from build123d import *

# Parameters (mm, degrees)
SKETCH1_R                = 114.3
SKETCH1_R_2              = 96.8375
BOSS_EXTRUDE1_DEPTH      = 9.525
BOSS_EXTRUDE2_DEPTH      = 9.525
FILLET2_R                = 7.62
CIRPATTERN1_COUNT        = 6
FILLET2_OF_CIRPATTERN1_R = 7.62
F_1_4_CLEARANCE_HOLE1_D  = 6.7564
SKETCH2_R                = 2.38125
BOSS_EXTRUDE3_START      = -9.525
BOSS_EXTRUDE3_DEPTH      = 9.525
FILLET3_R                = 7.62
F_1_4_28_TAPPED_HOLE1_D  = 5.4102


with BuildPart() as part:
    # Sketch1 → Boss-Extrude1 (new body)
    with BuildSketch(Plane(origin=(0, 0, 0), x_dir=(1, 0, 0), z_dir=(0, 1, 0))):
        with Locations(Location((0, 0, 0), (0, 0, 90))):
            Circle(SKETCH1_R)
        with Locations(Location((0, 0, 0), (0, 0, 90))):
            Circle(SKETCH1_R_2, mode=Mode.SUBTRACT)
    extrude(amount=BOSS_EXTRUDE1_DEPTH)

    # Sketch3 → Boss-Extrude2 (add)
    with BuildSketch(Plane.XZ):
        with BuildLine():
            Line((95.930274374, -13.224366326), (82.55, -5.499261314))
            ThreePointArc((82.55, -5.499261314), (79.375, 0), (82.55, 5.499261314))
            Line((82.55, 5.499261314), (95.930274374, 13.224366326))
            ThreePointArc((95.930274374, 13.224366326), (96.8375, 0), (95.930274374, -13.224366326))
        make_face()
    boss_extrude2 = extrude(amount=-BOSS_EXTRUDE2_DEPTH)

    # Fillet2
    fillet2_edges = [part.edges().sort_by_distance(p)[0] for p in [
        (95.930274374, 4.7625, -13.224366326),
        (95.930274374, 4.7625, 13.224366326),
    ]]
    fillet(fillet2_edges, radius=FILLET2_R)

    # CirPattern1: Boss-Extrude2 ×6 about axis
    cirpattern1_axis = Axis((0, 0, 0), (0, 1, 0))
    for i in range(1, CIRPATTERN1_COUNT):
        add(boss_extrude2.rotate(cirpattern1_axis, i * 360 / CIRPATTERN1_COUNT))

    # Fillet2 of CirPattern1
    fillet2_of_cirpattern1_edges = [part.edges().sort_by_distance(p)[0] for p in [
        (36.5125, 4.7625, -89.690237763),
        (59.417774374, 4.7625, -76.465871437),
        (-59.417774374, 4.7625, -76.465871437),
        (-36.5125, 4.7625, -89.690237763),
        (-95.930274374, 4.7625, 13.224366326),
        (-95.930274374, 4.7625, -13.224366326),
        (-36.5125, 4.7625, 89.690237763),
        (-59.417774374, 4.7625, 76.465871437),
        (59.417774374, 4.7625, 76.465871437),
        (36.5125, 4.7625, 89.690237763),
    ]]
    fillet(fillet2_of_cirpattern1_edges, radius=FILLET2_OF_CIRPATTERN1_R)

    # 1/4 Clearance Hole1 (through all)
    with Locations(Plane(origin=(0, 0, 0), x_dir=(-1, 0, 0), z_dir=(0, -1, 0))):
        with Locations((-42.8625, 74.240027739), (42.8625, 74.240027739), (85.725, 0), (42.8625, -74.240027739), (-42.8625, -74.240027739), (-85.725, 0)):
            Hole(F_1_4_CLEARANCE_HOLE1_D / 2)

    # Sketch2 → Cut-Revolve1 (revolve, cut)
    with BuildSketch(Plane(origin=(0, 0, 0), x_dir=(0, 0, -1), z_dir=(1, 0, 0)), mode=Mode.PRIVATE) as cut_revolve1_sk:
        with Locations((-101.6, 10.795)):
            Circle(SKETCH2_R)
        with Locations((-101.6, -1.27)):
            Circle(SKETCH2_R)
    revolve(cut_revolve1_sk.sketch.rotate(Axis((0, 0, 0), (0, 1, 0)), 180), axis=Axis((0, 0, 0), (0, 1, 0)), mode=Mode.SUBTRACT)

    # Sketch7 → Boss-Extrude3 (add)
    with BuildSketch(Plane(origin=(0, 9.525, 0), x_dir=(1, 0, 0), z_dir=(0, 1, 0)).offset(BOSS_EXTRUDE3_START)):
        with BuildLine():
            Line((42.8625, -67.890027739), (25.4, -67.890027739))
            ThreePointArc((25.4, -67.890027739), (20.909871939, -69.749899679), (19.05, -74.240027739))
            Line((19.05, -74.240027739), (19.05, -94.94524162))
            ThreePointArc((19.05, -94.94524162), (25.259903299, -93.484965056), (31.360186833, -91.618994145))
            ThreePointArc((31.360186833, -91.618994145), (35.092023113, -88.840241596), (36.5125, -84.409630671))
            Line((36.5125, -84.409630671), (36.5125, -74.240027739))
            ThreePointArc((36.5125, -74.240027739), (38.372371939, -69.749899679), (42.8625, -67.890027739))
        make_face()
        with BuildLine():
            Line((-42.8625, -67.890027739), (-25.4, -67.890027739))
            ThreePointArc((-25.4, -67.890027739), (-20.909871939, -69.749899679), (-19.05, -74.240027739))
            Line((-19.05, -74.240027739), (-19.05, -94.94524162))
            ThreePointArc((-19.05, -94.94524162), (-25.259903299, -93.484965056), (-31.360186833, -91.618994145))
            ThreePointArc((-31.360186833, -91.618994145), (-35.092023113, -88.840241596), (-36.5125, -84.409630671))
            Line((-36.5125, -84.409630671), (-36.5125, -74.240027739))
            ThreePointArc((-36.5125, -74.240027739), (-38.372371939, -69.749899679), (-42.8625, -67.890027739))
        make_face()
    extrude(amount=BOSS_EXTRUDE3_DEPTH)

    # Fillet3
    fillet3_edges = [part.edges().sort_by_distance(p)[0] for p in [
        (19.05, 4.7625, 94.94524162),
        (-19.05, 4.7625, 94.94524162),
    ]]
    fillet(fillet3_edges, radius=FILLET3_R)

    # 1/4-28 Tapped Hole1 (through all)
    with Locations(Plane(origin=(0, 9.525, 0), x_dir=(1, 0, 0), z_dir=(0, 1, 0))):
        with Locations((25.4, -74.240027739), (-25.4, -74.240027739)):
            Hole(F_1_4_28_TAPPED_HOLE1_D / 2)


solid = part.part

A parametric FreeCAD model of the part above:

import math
import FreeCAD as App
import Part
import Sketcher
from FreeCAD import Vector
Q = App.Units.Quantity


def edges_at(feature, points):
    """Names of the edges that pass closest to the given points."""
    edges = feature.Shape.Edges
    near = lambda p: min(range(len(edges)), key=lambda i: edges[i].distToShape(Part.Vertex(*p))[0])
    return sorted({f"Edge{near(p) + 1}" for p in points})

doc = App.newDocument("Part")
body = doc.addObject("PartDesign::Body", "Body")

# Sketch on XZ plane
sketch1 = body.newObject("Sketcher::SketchObject", "Sketch")
sketch1.AttachmentSupport = (doc.getObject("XZ_Plane"), [""])
sketch1.MapMode = "FlatFace"
sketch1.addGeometry(Part.Circle(Vector(0, 0, 0), Vector(0, 0, 1), 114), False)
sketch1.addGeometry(Part.Circle(Vector(0, 0, 0), Vector(0, 0, 1), 97), False)
sketch1.addConstraint(Sketcher.Constraint("Coincident", 0, 3, -1, 1))
sketch1.addConstraint(Sketcher.Constraint("Coincident", 1, 3, -1, 1))
sketch1.addConstraint(Sketcher.Constraint("Diameter", 0, Q("9 in")))
sketch1.addConstraint(Sketcher.Constraint("Diameter", 1, Q("7.625 in")))
pad1 = body.newObject("PartDesign::Pad", "Pad")
pad1.Profile = sketch1
pad1.Length = Q("0.375 in")
pad1.Reversed = True

# Sketch on XZ plane
sketch2 = body.newObject("Sketcher::SketchObject", "Sketch001")
sketch2.AttachmentSupport = (doc.getObject("XZ_Plane"), [""])
sketch2.MapMode = "FlatFace"
sketch2.addGeometry(Part.LineSegment(Vector(83, -5, 0), Vector(96, -13, 0)), False)
sketch2.addGeometry(Part.ArcOfCircle(Part.Circle(Vector(0, 0, 0), Vector(0, 0, 1), 97), math.radians(-7.85), math.radians(7.85)), False)
sketch2.addGeometry(Part.LineSegment(Vector(96, 13, 0), Vector(83, 5, 0)), False)
sketch2.addGeometry(Part.ArcOfCircle(Part.Circle(Vector(86, 0, 0), Vector(0, 0, 1), 6), math.radians(120), math.radians(240)), False)
sketch2.addConstraint(Sketcher.Constraint("Coincident", 0, 2, 1, 1))
sketch2.addConstraint(Sketcher.Constraint("Coincident", 1, 2, 2, 1))
sketch2.addConstraint(Sketcher.Constraint("Tangent", 2, 2, 3, 1))
sketch2.addConstraint(Sketcher.Constraint("Tangent", 3, 2, 0, 1))
sketch2.addConstraint(Sketcher.Constraint("Coincident", 1, 3, -1, 1))
sketch2.addConstraint(Sketcher.Constraint("Symmetric", 2, 2, 3, 2, -1))
sketch2.addConstraint(Sketcher.Constraint("Radius", 3, Q("0.25 in")))
sketch2.addConstraint(Sketcher.Constraint("Angle", 0, Q("-30 deg")))
sketch2.addConstraint(Sketcher.Constraint("Radius", 1, Q("3.8125 in")))
sketch2.addConstraint(Sketcher.Constraint("DistanceX", -1, 1, 2, 2, Q("3.25 in")))
pad2 = body.newObject("PartDesign::Pad", "Pad001")
pad2.Profile = sketch2
pad2.Length = Q("0.375 in")
pad2.Reversed = True
doc.recompute()

fillet = body.newObject("PartDesign::Fillet", "Fillet")
fillet.Base = (pad2, edges_at(pad2, [(95.93, 4.763, -13.224), (95.93, 4.763, 13.224)]))
fillet.Radius = Q("0.3 in")
doc.recompute()

polarpattern = body.newObject("PartDesign::PolarPattern", "PolarPattern")
polarpattern.Originals = [pad2]
polarpattern.Axis = (doc.getObject("Y_Axis"), [""])
polarpattern.Angle = 360
polarpattern.Occurrences = 6
body.Tip = polarpattern
doc.recompute()

fillet2 = body.newObject("PartDesign::Fillet", "Fillet001")
fillet2.Base = (polarpattern, edges_at(polarpattern, [
    (36.513, 4.763, -89.69),
    (59.418, 4.763, -76.466),
    (-59.418, 4.763, -76.466),
    (-36.513, 4.763, -89.69),
    (-95.93, 4.763, 13.224),
    (-95.93, 4.763, -13.224),
    (-36.513, 4.763, 89.69),
    (-59.418, 4.763, 76.466),
    (59.418, 4.763, 76.466),
    (36.513, 4.763, 89.69),
]))
fillet2.Radius = Q("0.3 in")

# Sketch on XZ plane
sketch3 = body.newObject("Sketcher::SketchObject", "Sketch002")
sketch3.AttachmentSupport = (doc.getObject("XZ_Plane"), [""])
sketch3.MapMode = "FlatFace"
sketch3.addGeometry(Part.Circle(Vector(42.9, -74.2, 0), Vector(0, 0, 1), 3.4), False)
sketch3.addGeometry(Part.Circle(Vector(-42.9, -74.2, 0), Vector(0, 0, 1), 3.4), False)
sketch3.addGeometry(Part.Circle(Vector(-85.7, 0, 0), Vector(0, 0, 1), 3.4), False)
sketch3.addGeometry(Part.Circle(Vector(-42.9, 74.2, 0), Vector(0, 0, 1), 3.4), False)
sketch3.addGeometry(Part.Circle(Vector(42.9, 74.2, 0), Vector(0, 0, 1), 3.4), False)
sketch3.addGeometry(Part.Circle(Vector(85.7, 0, 0), Vector(0, 0, 1), 3.4), False)
sketch3.addConstraint(Sketcher.Constraint("Equal", 0, 1))
sketch3.addConstraint(Sketcher.Constraint("Equal", 1, 2))
sketch3.addConstraint(Sketcher.Constraint("Equal", 2, 3))
sketch3.addConstraint(Sketcher.Constraint("Equal", 3, 4))
sketch3.addConstraint(Sketcher.Constraint("Equal", 4, 5))
sketch3.addConstraint(Sketcher.Constraint("Symmetric", 0, 3, 3, 3, -1, 1))
sketch3.addConstraint(Sketcher.Constraint("Symmetric", 1, 3, 4, 3, -1, 1))
sketch3.addConstraint(Sketcher.Constraint("Symmetric", 2, 3, 5, 3, -1, 1))
sketch3.addConstraint(Sketcher.Constraint("Symmetric", 0, 3, 1, 3, -2))
sketch3.addConstraint(Sketcher.Constraint("PointOnObject", 2, 3, -1))
sketch3.addConstraint(Sketcher.Constraint("Diameter", 0, Q("0.266 in")))
sketch3.addConstraint(Sketcher.Constraint("DistanceX", 2, 3, 5, 3, Q("6.75 in")))
sketch3.addConstraint(Sketcher.Constraint("DistanceX", -1, 1, 0, 3, Q("1.6875 in")))
sketch3.addConstraint(Sketcher.Constraint("DistanceY", 0, 3, -1, 1, 74.240028))
doc.recompute()
hole = body.newObject("PartDesign::Hole", "Hole")
hole.Profile = sketch3
hole.ThreadType = "None"
hole.Diameter = Q("0.266 in")
hole.DepthType = "ThroughAll"

# Sketch on YZ plane
sketch4 = body.newObject("Sketcher::SketchObject", "Sketch003")
sketch4.AttachmentSupport = (doc.getObject("YZ_Plane"), [""])
sketch4.MapMode = "FlatFace"
sketch4.addGeometry(Part.Circle(Vector(10.8, 101.6, 0), Vector(0, 0, 1), 2.4), False)
sketch4.addGeometry(Part.Circle(Vector(-1.3, 101.6, 0), Vector(0, 0, 1), 2.4), False)
sketch4.addConstraint(Sketcher.Constraint("Equal", 0, 1))
sketch4.addConstraint(Sketcher.Constraint("Horizontal", 0, 3, 1, 3))
sketch4.addConstraint(Sketcher.Constraint("Diameter", 0, Q("0.1875 in")))
sketch4.addConstraint(Sketcher.Constraint("DistanceY", -1, 1, 0, 3, Q("4 in")))
sketch4.addConstraint(Sketcher.Constraint("DistanceX", 1, 3, -1, 1, Q("0.05 in")))
sketch4.addConstraint(Sketcher.Constraint("DistanceX", -1, 1, 0, 3, Q("0.425 in")))
groove = body.newObject("PartDesign::Groove", "Groove")
groove.Profile = sketch4
groove.ReferenceAxis = (sketch4, ["H_Axis"])
groove.Angle = 360

# Sketch on XZ plane
sketch5 = body.newObject("Sketcher::SketchObject", "Sketch004")
sketch5.AttachmentSupport = (doc.getObject("XZ_Plane"), [""])
sketch5.MapMode = "FlatFace"
sketch5.addGeometry(Part.LineSegment(Vector(43, 68, 0), Vector(25, 68, 0)), False)
sketch5.addGeometry(Part.ArcOfCircle(Part.Circle(Vector(25, 74, 0), Vector(0, 0, 1), 6), math.radians(180), math.radians(270)), False)
sketch5.addGeometry(Part.LineSegment(Vector(19, 74, 0), Vector(19, 95, 0)), False)
sketch5.addGeometry(Part.ArcOfCircle(Part.Circle(Vector(0, 0, 0), Vector(0, 0, 1), 97), math.radians(71.1), math.radians(78.65)), False)
sketch5.addGeometry(Part.ArcOfCircle(Part.Circle(Vector(29, 84, 0), Vector(0, 0, 1), 8), math.radians(0), math.radians(71)), False)
sketch5.addGeometry(Part.LineSegment(Vector(37, 84, 0), Vector(37, 74, 0)), False)
sketch5.addGeometry(Part.ArcOfCircle(Part.Circle(Vector(43, 74, 0), Vector(0, 0, 1), 6), math.radians(180), math.radians(270)), False)
sketch5.addGeometry(Part.LineSegment(Vector(-25, 68, 0), Vector(-43, 68, 0)), False)
sketch5.addGeometry(Part.ArcOfCircle(Part.Circle(Vector(-43, 74, 0), Vector(0, 0, 1), 6), math.radians(-90), math.radians(0)), False)
sketch5.addGeometry(Part.LineSegment(Vector(-37, 74, 0), Vector(-37, 84, 0)), False)
sketch5.addGeometry(Part.ArcOfCircle(Part.Circle(Vector(-29, 84, 0), Vector(0, 0, 1), 8), math.radians(109), math.radians(180)), False)
sketch5.addGeometry(Part.ArcOfCircle(Part.Circle(Vector(0, 0, 0), Vector(0, 0, 1), 97), math.radians(101.35), math.radians(108.9)), False)
sketch5.addGeometry(Part.LineSegment(Vector(-19, 95, 0), Vector(-19, 74, 0)), False)
sketch5.addGeometry(Part.ArcOfCircle(Part.Circle(Vector(-25, 74, 0), Vector(0, 0, 1), 6), math.radians(-90), math.radians(0)), False)
sketch5.addConstraint(Sketcher.Constraint("Tangent", 0, 2, 1, 2))
sketch5.addConstraint(Sketcher.Constraint("Tangent", 1, 1, 2, 1))
sketch5.addConstraint(Sketcher.Constraint("Coincident", 2, 2, 3, 2))
sketch5.addConstraint(Sketcher.Constraint("Tangent", 3, 1, 4, 2))
sketch5.addConstraint(Sketcher.Constraint("Tangent", 4, 1, 5, 1))
sketch5.addConstraint(Sketcher.Constraint("Tangent", 5, 2, 6, 1))
sketch5.addConstraint(Sketcher.Constraint("Tangent", 6, 2, 0, 1))
sketch5.addConstraint(Sketcher.Constraint("Tangent", 7, 2, 8, 1))
sketch5.addConstraint(Sketcher.Constraint("Tangent", 8, 2, 9, 1))
sketch5.addConstraint(Sketcher.Constraint("Tangent", 9, 2, 10, 2))
sketch5.addConstraint(Sketcher.Constraint("Tangent", 10, 1, 11, 2))
sketch5.addConstraint(Sketcher.Constraint("Coincident", 11, 1, 12, 1))
sketch5.addConstraint(Sketcher.Constraint("Tangent", 12, 2, 13, 2))
sketch5.addConstraint(Sketcher.Constraint("Tangent", 13, 1, 7, 1))
sketch5.addConstraint(Sketcher.Constraint("Horizontal", 0))
sketch5.addConstraint(Sketcher.Constraint("Vertical", 2))
sketch5.addConstraint(Sketcher.Constraint("Vertical", 5))
sketch5.addConstraint(Sketcher.Constraint("Horizontal", 7))
sketch5.addConstraint(Sketcher.Constraint("Vertical", 9))
sketch5.addConstraint(Sketcher.Constraint("Vertical", 12))
sketch5.addConstraint(Sketcher.Constraint("Coincident", 3, 3, -1, 1))
sketch5.addConstraint(Sketcher.Constraint("Coincident", 11, 3, -1, 1))
sketch5.addConstraint(Sketcher.Constraint("Equal", 1, 6))
sketch5.addConstraint(Sketcher.Constraint("Equal", 6, 8))
sketch5.addConstraint(Sketcher.Constraint("Equal", 4, 10))
sketch5.addConstraint(Sketcher.Constraint("Equal", 3, 11))
sketch5.addConstraint(Sketcher.Constraint("Equal", 8, 13))
sketch5.addConstraint(Sketcher.Constraint("Symmetric", 6, 3, 8, 3, -2))
sketch5.addConstraint(Sketcher.Constraint("Horizontal", 2, 2, 11, 1))
sketch5.addConstraint(Sketcher.Constraint("Radius", 4, Q("0.3 in")))
sketch5.addConstraint(Sketcher.Constraint("Radius", 1, Q("0.25 in")))
sketch5.addConstraint(Sketcher.Constraint("DistanceX", -1, 1, 1, 3, Q("1 in")))
sketch5.addConstraint(Sketcher.Constraint("Radius", 3, Q("3.8125 in")))
sketch5.addConstraint(Sketcher.Constraint("DistanceX", 0, 2, 0, 1, Q("0.6875 in")))
sketch5.addConstraint(Sketcher.Constraint("DistanceY", 2, 1, 2, 2, 20.705214))
pad3 = body.newObject("PartDesign::Pad", "Pad002")
pad3.Profile = sketch5
pad3.Length = Q("0.375 in")
pad3.Reversed = True
doc.recompute()

fillet3 = body.newObject("PartDesign::Fillet", "Fillet002")
fillet3.Base = (pad3, edges_at(pad3, [(19.05, 4.763, 94.945), (-19.05, 4.763, 94.945)]))
fillet3.Radius = Q("0.3 in")

# Sketch on XZ plane
sketch6 = body.newObject("Sketcher::SketchObject", "Sketch005")
sketch6.AttachmentSupport = (doc.getObject("XZ_Plane"), [""])
sketch6.MapMode = "FlatFace"
sketch6.AttachmentOffset = App.Placement(Vector(0, 0, -0.375 * 25.4), App.Rotation())
sketch6.addGeometry(Part.Circle(Vector(25.4, 74.2, 0), Vector(0, 0, 1), 2.7), False)
sketch6.addGeometry(Part.Circle(Vector(-25.4, 74.2, 0), Vector(0, 0, 1), 2.7), False)
sketch6.addConstraint(Sketcher.Constraint("Equal", 0, 1))
sketch6.addConstraint(Sketcher.Constraint("Symmetric", 0, 3, 1, 3, -2))
sketch6.addConstraint(Sketcher.Constraint("Diameter", 0, Q("0.213 in")))
sketch6.addConstraint(Sketcher.Constraint("DistanceX", -1, 1, 0, 3, Q("1 in")))
sketch6.addConstraint(Sketcher.Constraint("DistanceY", -1, 1, 0, 3, 74.240028))
doc.recompute()
hole2 = body.newObject("PartDesign::Hole", "Hole001")
hole2.Profile = sketch6
hole2.ThreadType = "None"
hole2.Diameter = Q("0.213 in")
hole2.DepthType = "ThroughAll"
hole2.Reversed = True

doc.recompute()
